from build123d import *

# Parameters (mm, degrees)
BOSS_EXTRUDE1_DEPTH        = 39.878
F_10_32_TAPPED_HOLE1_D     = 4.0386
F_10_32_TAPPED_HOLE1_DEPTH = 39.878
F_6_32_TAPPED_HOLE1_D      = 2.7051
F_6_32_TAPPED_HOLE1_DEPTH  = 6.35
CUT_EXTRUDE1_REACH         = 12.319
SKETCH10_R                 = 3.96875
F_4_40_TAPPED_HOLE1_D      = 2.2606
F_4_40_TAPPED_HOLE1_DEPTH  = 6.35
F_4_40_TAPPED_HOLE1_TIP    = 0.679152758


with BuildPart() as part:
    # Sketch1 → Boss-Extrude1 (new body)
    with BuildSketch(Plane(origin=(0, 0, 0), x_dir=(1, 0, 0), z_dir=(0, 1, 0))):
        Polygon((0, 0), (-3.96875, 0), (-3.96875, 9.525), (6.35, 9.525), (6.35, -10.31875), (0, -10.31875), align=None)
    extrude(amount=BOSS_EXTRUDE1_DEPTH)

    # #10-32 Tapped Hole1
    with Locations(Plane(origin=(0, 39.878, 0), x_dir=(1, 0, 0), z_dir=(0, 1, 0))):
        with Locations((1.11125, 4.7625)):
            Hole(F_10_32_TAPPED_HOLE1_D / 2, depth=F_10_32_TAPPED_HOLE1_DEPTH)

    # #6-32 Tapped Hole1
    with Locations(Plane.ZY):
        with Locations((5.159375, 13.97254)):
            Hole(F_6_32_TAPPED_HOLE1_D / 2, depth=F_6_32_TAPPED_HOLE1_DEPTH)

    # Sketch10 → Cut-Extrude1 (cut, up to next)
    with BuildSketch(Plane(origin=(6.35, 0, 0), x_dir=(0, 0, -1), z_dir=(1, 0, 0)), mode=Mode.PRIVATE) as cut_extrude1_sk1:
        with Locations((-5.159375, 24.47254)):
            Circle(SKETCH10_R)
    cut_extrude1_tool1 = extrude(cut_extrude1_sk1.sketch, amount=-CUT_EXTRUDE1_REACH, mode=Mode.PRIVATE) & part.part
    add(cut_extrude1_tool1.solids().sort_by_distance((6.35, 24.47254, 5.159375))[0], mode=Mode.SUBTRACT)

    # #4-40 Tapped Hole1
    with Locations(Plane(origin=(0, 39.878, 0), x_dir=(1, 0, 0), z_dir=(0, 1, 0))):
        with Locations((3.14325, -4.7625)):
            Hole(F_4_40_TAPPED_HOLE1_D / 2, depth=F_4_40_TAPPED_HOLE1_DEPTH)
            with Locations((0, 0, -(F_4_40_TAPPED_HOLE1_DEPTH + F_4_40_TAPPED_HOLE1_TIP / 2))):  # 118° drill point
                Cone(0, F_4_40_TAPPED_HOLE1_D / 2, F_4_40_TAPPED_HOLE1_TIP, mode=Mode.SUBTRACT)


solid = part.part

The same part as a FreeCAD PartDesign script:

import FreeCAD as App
import Part
import Sketcher

V = App.Vector
Q = App.Units.Quantity

doc = App.newDocument("Part")
body = doc.addObject("PartDesign::Body", "Body")

sketch1 = doc.addObject("Sketcher::SketchObject", "Sketch")
body.addObject(sketch1)
sketch1.AttachmentSupport = (doc.XZ_Plane, [""])
sketch1.MapMode = "FlatFace"
sketch1.addGeometry(Part.LineSegment(V(-4, 0, 0), V(0, 0, 0)), False)
sketch1.addGeometry(Part.LineSegment(V(0, 0, 0), V(0, 10.3, 0)), False)
sketch1.addGeometry(Part.LineSegment(V(0, 10.3, 0), V(6.3, 10.3, 0)), False)
sketch1.addGeometry(Part.LineSegment(V(6.3, 10.3, 0), V(6.3, -9.5, 0)), False)
sketch1.addGeometry(Part.LineSegment(V(6.3, -9.5, 0), V(-4, -9.5, 0)), False)
sketch1.addGeometry(Part.LineSegment(V(-4, -9.5, 0), V(-4, 0, 0)), False)
sketch1.addConstraint(Sketcher.Constraint("Coincident", 0, 2, 1, 1))
sketch1.addConstraint(Sketcher.Constraint("Coincident", 1, 2, 2, 1))
sketch1.addConstraint(Sketcher.Constraint("Coincident", 2, 2, 3, 1))
sketch1.addConstraint(Sketcher.Constraint("Coincident", 3, 2, 4, 1))
sketch1.addConstraint(Sketcher.Constraint("Coincident", 4, 2, 5, 1))
sketch1.addConstraint(Sketcher.Constraint("Coincident", 5, 2, 0, 1))
sketch1.addConstraint(Sketcher.Constraint("Horizontal", 0))
sketch1.addConstraint(Sketcher.Constraint("Vertical", 1))
sketch1.addConstraint(Sketcher.Constraint("Horizontal", 2))
sketch1.addConstraint(Sketcher.Constraint("Vertical", 3))
sketch1.addConstraint(Sketcher.Constraint("Horizontal", 4))
sketch1.addConstraint(Sketcher.Constraint("Vertical", 5))
sketch1.addConstraint(Sketcher.Constraint("Coincident", 0, 2, -1, 1))
sketch1.addConstraint(Sketcher.Constraint("Equal", 4, 1))
sketch1.addConstraint(Sketcher.Constraint("DistanceX", 2, 1, 2, 2, Q("0.25 in")))
sketch1.addConstraint(Sketcher.Constraint("DistanceX", 0, 1, 0, 2, Q("0.15625 in")))
sketch1.addConstraint(Sketcher.Constraint("DistanceY", 3, 2, 3, 1, Q("0.78125 in")))
pad1 = doc.addObject("PartDesign::Pad", "Pad")
body.addObject(pad1)
pad1.Profile = sketch1
pad1.Length = Q("1.57 in")
pad1.Reversed = True

sketch2 = doc.addObject("Sketcher::SketchObject", "Sketch001")
body.addObject(sketch2)
sketch2.AttachmentSupport = (doc.XZ_Plane, [""])
sketch2.MapMode = "FlatFace"
sketch2.AttachmentOffset = App.Placement(V(0, 0, -1.57 * 25.4), App.Rotation())
sketch2.addGeometry(Part.Circle(V(1.1, -4.8, 0), V(0, 0, 1), 2), False)
sketch2.addConstraint(Sketcher.Constraint("Diameter", 0, Q("0.159 in")))
sketch2.addConstraint(Sketcher.Constraint("DistanceY", 0, 3, -1, 1, Q("0.1875 in")))
sketch2.addConstraint(Sketcher.Constraint("DistanceX", -1, 1, 0, 3, 1.11125))
doc.recompute()
hole = doc.addObject("PartDesign::Hole", "Hole")
body.addObject(hole)
hole.Profile = sketch2
hole.ThreadType = "None"
hole.Diameter = Q("0.159 in")
hole.DepthType = "Dimension"
hole.Depth = Q("1.57 in")
hole.DrillPoint = "Flat"
hole.Reversed = True

sketch3 = doc.addObject("Sketcher::SketchObject", "Sketch002")
body.addObject(sketch3)
sketch3.AttachmentSupport = (doc.YZ_Plane, [""])
sketch3.MapMode = "FlatFace"
sketch3.addGeometry(Part.Circle(V(14, 5.2, 0), V(0, 0, 1), 1.4), False)
sketch3.addConstraint(Sketcher.Constraint("Diameter", 0, Q("0.1065 in")))
sketch3.addConstraint(Sketcher.Constraint("DistanceY", -1, 1, 0, 3, Q("0.203125 in")))
sketch3.addConstraint(Sketcher.Constraint("DistanceX", -1, 1, 0, 3, Q("0.5501 in")))
doc.recompute()
hole2 = doc.addObject("PartDesign::Hole", "Hole001")
body.addObject(hole2)
hole2.Profile = sketch3
hole2.ThreadType = "None"
hole2.Diameter = Q("0.1065 in")
hole2.DepthType = "Dimension"
hole2.Depth = Q("0.25 in")
hole2.DrillPoint = "Flat"
hole2.Reversed = True

sketch4 = doc.addObject("Sketcher::SketchObject", "Sketch003")
body.addObject(sketch4)
sketch4.AttachmentSupport = (doc.YZ_Plane, [""])
sketch4.MapMode = "FlatFace"
sketch4.AttachmentOffset = App.Placement(V(0, 0, 0.25 * 25.4), App.Rotation())
sketch4.addGeometry(Part.Circle(V(24.5, 5.2, 0), V(0, 0, 1), 4), False)
sketch4.addConstraint(Sketcher.Constraint("Diameter", 0, Q("0.3125 in")))
sketch4.addConstraint(Sketcher.Constraint("DistanceY", -1, 1, 0, 3, Q("0.203125 in")))
sketch4.addConstraint(Sketcher.Constraint("DistanceX", -1, 1, 0, 3, 24.47254))
pocket1 = doc.addObject("PartDesign::Pocket", "Pocket")
body.addObject(pocket1)
pocket1.Profile = sketch4
pocket1.Type = "UpToFirst"

sketch5 = doc.addObject("Sketcher::SketchObject", "Sketch004")
body.addObject(sketch5)
sketch5.AttachmentSupport = (doc.XZ_Plane, [""])
sketch5.MapMode = "FlatFace"
sketch5.AttachmentOffset = App.Placement(V(0, 0, -1.57 * 25.4), App.Rotation())
sketch5.addGeometry(Part.Circle(V(3.1, 4.8, 0), V(0, 0, 1), 1.1), False)
sketch5.addConstraint(Sketcher.Constraint("Diameter", 0, Q("0.089 in")))
sketch5.addConstraint(Sketcher.Constraint("DistanceY", -1, 1, 0, 3, Q("0.1875 in")))
sketch5.addConstraint(Sketcher.Constraint("DistanceX", -1, 1, 0, 3, 3.14325))
doc.recompute()
hole3 = doc.addObject("PartDesign::Hole", "Hole002")
body.addObject(hole3)
hole3.Profile = sketch5
hole3.ThreadType = "None"
hole3.Diameter = Q("0.089 in")
hole3.DepthType = "Dimension"
hole3.Depth = Q("0.25 in")
hole3.DrillPoint = "Angled"
hole3.DrillPointAngle = 118
hole3.Reversed = True

doc.recompute()
